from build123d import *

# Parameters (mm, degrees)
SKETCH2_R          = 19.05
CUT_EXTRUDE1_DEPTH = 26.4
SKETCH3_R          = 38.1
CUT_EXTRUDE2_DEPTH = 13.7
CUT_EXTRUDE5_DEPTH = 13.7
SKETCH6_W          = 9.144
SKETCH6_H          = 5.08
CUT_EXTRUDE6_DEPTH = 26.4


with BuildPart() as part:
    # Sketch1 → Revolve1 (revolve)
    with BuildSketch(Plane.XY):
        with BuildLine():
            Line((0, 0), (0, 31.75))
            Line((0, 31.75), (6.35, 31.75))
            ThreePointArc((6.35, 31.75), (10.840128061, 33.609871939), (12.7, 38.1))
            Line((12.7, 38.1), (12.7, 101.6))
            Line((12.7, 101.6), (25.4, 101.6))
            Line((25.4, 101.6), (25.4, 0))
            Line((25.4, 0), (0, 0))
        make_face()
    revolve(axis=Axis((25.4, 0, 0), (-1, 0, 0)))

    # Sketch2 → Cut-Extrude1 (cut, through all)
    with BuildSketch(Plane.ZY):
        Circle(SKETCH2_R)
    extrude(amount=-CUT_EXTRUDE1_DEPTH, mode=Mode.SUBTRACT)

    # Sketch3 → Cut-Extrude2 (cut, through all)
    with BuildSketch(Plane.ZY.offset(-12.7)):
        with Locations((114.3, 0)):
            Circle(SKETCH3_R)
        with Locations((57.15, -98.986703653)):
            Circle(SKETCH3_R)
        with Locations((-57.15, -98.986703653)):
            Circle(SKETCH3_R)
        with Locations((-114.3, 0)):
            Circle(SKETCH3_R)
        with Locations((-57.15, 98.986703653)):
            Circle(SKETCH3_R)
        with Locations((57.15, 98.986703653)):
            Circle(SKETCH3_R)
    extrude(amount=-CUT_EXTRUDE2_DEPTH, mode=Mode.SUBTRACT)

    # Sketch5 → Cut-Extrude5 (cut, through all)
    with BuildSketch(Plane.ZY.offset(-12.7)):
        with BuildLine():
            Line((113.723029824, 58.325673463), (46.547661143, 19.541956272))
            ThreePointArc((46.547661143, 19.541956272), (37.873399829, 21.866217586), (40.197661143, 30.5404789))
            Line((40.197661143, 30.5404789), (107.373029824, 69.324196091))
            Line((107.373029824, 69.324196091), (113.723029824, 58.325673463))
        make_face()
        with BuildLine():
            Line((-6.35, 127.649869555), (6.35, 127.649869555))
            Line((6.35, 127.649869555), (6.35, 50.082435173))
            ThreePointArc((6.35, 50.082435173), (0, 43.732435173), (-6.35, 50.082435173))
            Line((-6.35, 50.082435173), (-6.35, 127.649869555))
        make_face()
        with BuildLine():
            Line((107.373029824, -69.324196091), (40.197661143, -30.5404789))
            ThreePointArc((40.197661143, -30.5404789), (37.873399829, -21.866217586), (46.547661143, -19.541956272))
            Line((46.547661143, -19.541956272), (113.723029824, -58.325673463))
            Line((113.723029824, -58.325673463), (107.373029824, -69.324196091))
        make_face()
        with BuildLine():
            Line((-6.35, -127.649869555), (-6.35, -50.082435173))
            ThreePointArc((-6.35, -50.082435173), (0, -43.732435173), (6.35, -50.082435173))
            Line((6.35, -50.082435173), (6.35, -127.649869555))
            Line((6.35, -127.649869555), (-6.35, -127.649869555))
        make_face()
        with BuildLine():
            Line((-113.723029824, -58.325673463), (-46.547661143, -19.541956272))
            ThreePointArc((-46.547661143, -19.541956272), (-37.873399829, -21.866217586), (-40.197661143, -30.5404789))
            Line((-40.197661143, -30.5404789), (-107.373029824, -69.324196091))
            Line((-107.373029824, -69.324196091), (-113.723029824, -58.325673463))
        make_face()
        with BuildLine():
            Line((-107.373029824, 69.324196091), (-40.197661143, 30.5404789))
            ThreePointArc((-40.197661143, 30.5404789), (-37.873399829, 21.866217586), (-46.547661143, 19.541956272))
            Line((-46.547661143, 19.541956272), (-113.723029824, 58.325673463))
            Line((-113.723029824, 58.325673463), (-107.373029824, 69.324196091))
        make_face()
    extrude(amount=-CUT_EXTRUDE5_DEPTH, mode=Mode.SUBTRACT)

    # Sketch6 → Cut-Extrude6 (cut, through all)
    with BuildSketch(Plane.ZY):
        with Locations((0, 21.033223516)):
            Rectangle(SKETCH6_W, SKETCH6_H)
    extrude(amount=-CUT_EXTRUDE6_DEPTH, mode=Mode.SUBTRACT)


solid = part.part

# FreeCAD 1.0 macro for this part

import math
import FreeCAD as App
import Part
import Sketcher
from FreeCAD import Vector
Q = App.Units.Quantity

doc = App.newDocument("Part")
params = doc.addObject("Spreadsheet::Sheet", "Params")
for row, (alias, value) in enumerate([
    ("sketch1_width", "1 in"),
    ("sketch1_height", "4 in"),
    ("sketch1_radius", "0.25 in"),
    ("sketch1_width2", "0.5 in"),
    ("sketch1_height2", "2.5 in"),
    ("revolution_angle", "360 deg"),
    ("sketch2_diameter", "1.5 in"),
    ("sketch3_diameter", "3 in"),
    ("sketch4_radius", "0.25 in"),
    ("sketch5_width", "0.2 in"),
    ("sketch5_height", "0.36 in"),
], start=1):
    params.set(f"A{row}", alias)
    params.set(f"B{row}", "=" + value)
    params.setAlias(f"B{row}", alias)

body = doc.addObject("PartDesign::Body", "Body")

sketch1 = body.newObject("Sketcher::SketchObject", "Sketch")
sketch1.AttachmentSupport = (doc.getObject("XY_Plane"), [""])
sketch1.MapMode = "FlatFace"
sketch1.addGeometry([
    Part.LineSegment(Vector(0, 32, 0), Vector(0, 0, 0)),
    Part.LineSegment(Vector(0, 0, 0), Vector(25, 0, 0)),
    Part.LineSegment(Vector(25, 0, 0), Vector(25, 102, 0)),
    Part.LineSegment(Vector(25, 102, 0), Vector(13, 102, 0)),
    Part.LineSegment(Vector(13, 102, 0), Vector(13, 38, 0)),
    Part.ArcOfCircle(Part.Circle(Vector(6, 38, 0), Vector(0, 0, 1), 6), math.radians(-90), math.radians(0)),
    Part.LineSegment(Vector(6, 32, 0), Vector(0, 32, 0)),
], False)
sketch1.addConstraint([
    Sketcher.Constraint("Coincident", 0, 2, 1, 1),
    Sketcher.Constraint("Coincident", 1, 2, 2, 1),
    Sketcher.Constraint("Coincident", 2, 2, 3, 1),
    Sketcher.Constraint("Coincident", 3, 2, 4, 1),
    Sketcher.Constraint("Tangent", 4, 2, 5, 2),
    Sketcher.Constraint("Tangent", 5, 1, 6, 1),
    Sketcher.Constraint("Coincident", 6, 2, 0, 1),
    Sketcher.Constraint("Vertical", 0),
    Sketcher.Constraint("Horizontal", 1),
    Sketcher.Constraint("Vertical", 2),
    Sketcher.Constraint("Horizontal", 3),
    Sketcher.Constraint("Vertical", 4),
    Sketcher.Constraint("Horizontal", 6),
    Sketcher.Constraint("Coincident", 0, 2, -1, 1),
    Sketcher.Constraint("DistanceX", 1, 1, 1, 2, Q("1 in")),
    Sketcher.Constraint("DistanceY", 2, 1, 2, 2, Q("4 in")),
    Sketcher.Constraint("Radius", 5, Q("0.25 in")),
    Sketcher.Constraint("DistanceX", 3, 2, 3, 1, Q("0.5 in")),
    Sketcher.Constraint("DistanceY", 4, 2, 4, 1, Q("2.5 in")),
])
sketch1.setExpression("Constraints[14]", "Params.sketch1_width")
sketch1.setExpression("Constraints[15]", "Params.sketch1_height")
sketch1.setExpression("Constraints[16]", "Params.sketch1_radius")
sketch1.setExpression("Constraints[17]", "Params.sketch1_width2")
sketch1.setExpression("Constraints[18]", "Params.sketch1_height2")
revolution = body.newObject("PartDesign::Revolution", "Revolution")
revolution.Profile = sketch1
revolution.ReferenceAxis = (sketch1, ["H_Axis"])
revolution.setExpression("Angle", "Params.revolution_angle")

sketch2 = body.newObject("Sketcher::SketchObject", "Sketch001")
sketch2.AttachmentSupport = (doc.getObject("YZ_Plane"), [""])
sketch2.MapMode = "FlatFace"
sketch2.addGeometry(Part.Circle(Vector(0, 0, 0), Vector(0, 0, 1), 19), False)
sketch2.addConstraint([
    Sketcher.Constraint("Coincident", 0, 3, -1, 1),
    Sketcher.Constraint("Diameter", 0, Q("1.5 in")),
])
sketch2.setExpression("Constraints[1]", "Params.sketch2_diameter")
pocket1 = body.newObject("PartDesign::Pocket", "Pocket")
pocket1.Profile = sketch2
pocket1.Type = "ThroughAll"
pocket1.Reversed = True

sketch3 = body.newObject("Sketcher::SketchObject", "Sketch002")
sketch3.AttachmentSupport = (doc.getObject("YZ_Plane"), [""])
sketch3.MapMode = "FlatFace"
sketch3.AttachmentOffset = App.Placement(Vector(0, 0, 0.5 * 25.4), App.Rotation())
sketch3.addGeometry([
    Part.Circle(Vector(0, 114, 0), Vector(0, 0, 1), 38),
    Part.Circle(Vector(-99, 57, 0), Vector(0, 0, 1), 38),
    Part.Circle(Vector(-99, -57, 0), Vector(0, 0, 1), 38),
    Part.Circle(Vector(0, -114, 0), Vector(0, 0, 1), 38),
    Part.Circle(Vector(99, -57, 0), Vector(0, 0, 1), 38),
    Part.Circle(Vector(99, 57, 0), Vector(0, 0, 1), 38),
], False)
sketch3.addConstraint([
    Sketcher.Constraint("Equal", 0, 1),
    Sketcher.Constraint("Equal", 1, 2),
    Sketcher.Constraint("Equal", 2, 3),
    Sketcher.Constraint("Equal", 3, 4),
    Sketcher.Constraint("Equal", 4, 5),
    Sketcher.Constraint("Symmetric", 0, 3, 3, 3, -1, 1),
    Sketcher.Constraint("Symmetric", 1, 3, 4, 3, -1, 1),
    Sketcher.Constraint("Symmetric", 2, 3, 5, 3, -1, 1),
    Sketcher.Constraint("Symmetric", 2, 3, 4, 3, -2),
    Sketcher.Constraint("PointOnObject", 0, 3, -2),
    Sketcher.Constraint("Diameter", 0, Q("3 in")),
    Sketcher.Constraint("DistanceY", 3, 3, 0, 3, Q("9 in")),
    Sketcher.Constraint("DistanceY", 2, 3, 1, 3, Q("4.5 in")),
    Sketcher.Constraint("DistanceX", 1, 3, -1, 1, 98.986704),
])
sketch3.setExpression("Constraints[10]", "Params.sketch3_diameter")
pocket2 = body.newObject("PartDesign::Pocket", "Pocket001")
pocket2.Profile = sketch3
pocket2.Type = "ThroughAll"
pocket2.Reversed = True

sketch4 = body.newObject("Sketcher::SketchObject", "Sketch003")
sketch4.AttachmentSupport = (doc.getObject("YZ_Plane"), [""])
sketch4.MapMode = "FlatFace"
sketch4.AttachmentOffset = App.Placement(Vector(0, 0, 0.5 * 25.4), App.Rotation())
sketch4.addGeometry([
    Part.LineSegment(Vector(20, 47, 0), Vector(58, 114, 0)),
    Part.LineSegment(Vector(58, 114, 0), Vector(69, 107, 0)),
    Part.LineSegment(Vector(69, 107, 0), Vector(31, 40, 0)),
    Part.ArcOfCircle(Part.Circle(Vector(25, 43, 0), Vector(0, 0, 1), 6), math.radians(150), math.radians(330)),
    Part.LineSegment(Vector(128, 6, 0), Vector(128, -6, 0)),
    Part.LineSegment(Vector(128, -6, 0), Vector(50, -6, 0)),
    Part.ArcOfCircle(Part.Circle(Vector(50, 0, 0), Vector(0, 0, 1), 6), math.radians(90), math.radians(270)),
    Part.LineSegment(Vector(50, 6, 0), Vector(128, 6, 0)),
    Part.LineSegment(Vector(-31, 40, 0), Vector(-69, 107, 0)),
    Part.LineSegment(Vector(-69, 107, 0), Vector(-58, 114, 0)),
    Part.LineSegment(Vector(-58, 114, 0), Vector(-20, 47, 0)),
    Part.ArcOfCircle(Part.Circle(Vector(-25, 43, 0), Vector(0, 0, 1), 6), math.radians(-150), math.radians(30)),
    Part.LineSegment(Vector(-50, -6, 0), Vector(-128, -6, 0)),
    Part.LineSegment(Vector(-128, -6, 0), Vector(-128, 6, 0)),
    Part.LineSegment(Vector(-128, 6, 0), Vector(-50, 6, 0)),
    Part.ArcOfCircle(Part.Circle(Vector(-50, 0, 0), Vector(0, 0, 1), 6), math.radians(-90), math.radians(90)),
    Part.LineSegment(Vector(-20, -47, 0), Vector(-58, -114, 0)),
    Part.LineSegment(Vector(-58, -114, 0), Vector(-69, -107, 0)),
    Part.LineSegment(Vector(-69, -107, 0), Vector(-31, -40, 0)),
    Part.ArcOfCircle(Part.Circle(Vector(-25, -43, 0), Vector(0, 0, 1), 6), math.radians(-30), math.radians(150)),
    Part.LineSegment(Vector(31, -40, 0), Vector(69, -107, 0)),
    Part.LineSegment(Vector(69, -107, 0), Vector(58, -114, 0)),
    Part.LineSegment(Vector(58, -114, 0), Vector(20, -47, 0)),
    Part.ArcOfCircle(Part.Circle(Vector(25, -43, 0), Vector(0, 0, 1), 6), math.radians(30), math.radians(210)),
], False)
sketch4.addConstraint([
    Sketcher.Constraint("Coincident", 0, 2, 1, 1),
    Sketcher.Constraint("Coincident", 1, 2, 2, 1),
    Sketcher.Constraint("Tangent", 2, 2, 3, 2),
    Sketcher.Constraint("Tangent", 3, 1, 0, 1),
    Sketcher.Constraint("Coincident", 4, 2, 5, 1),
    Sketcher.Constraint("Tangent", 5, 2, 6, 2),
    Sketcher.Constraint("Tangent", 6, 1, 7, 1),
    Sketcher.Constraint("Coincident", 7, 2, 4, 1),
    Sketcher.Constraint("Coincident", 8, 2, 9, 1),
    Sketcher.Constraint("Coincident", 9, 2, 10, 1),
    Sketcher.Constraint("Tangent", 10, 2, 11, 2),
    Sketcher.Constraint("Tangent", 11, 1, 8, 1),
    Sketcher.Constraint("Coincident", 12, 2, 13, 1),
    Sketcher.Constraint("Coincident", 13, 2, 14, 1),
    Sketcher.Constraint("Tangent", 14, 2, 15, 2),
    Sketcher.Constraint("Tangent", 15, 1, 12, 1),
    Sketcher.Constraint("Coincident", 16, 2, 17, 1),
    Sketcher.Constraint("Coincident", 17, 2, 18, 1),
    Sketcher.Constraint("Tangent", 18, 2, 19, 2),
    Sketcher.Constraint("Tangent", 19, 1, 16, 1),
    Sketcher.Constraint("Coincident", 20, 2, 21, 1),
    Sketcher.Constraint("Coincident", 21, 2, 22, 1),
    Sketcher.Constraint("Tangent", 22, 2, 23, 2),
    Sketcher.Constraint("Tangent", 23, 1, 20, 1),
    Sketcher.Constraint("Vertical", 4),
    Sketcher.Constraint("Horizontal", 5),
    Sketcher.Constraint("Horizontal", 7),
    Sketcher.Constraint("Horizontal", 12),
    Sketcher.Constraint("Vertical", 13),
    Sketcher.Constraint("Horizontal", 14),
    Sketcher.Constraint("Equal", 3, 6),
    Sketcher.Constraint("Equal", 6, 11),
    Sketcher.Constraint("Equal", 11, 15),
    Sketcher.Constraint("Equal", 15, 19),
    Sketcher.Constraint("Equal", 19, 23),
    Sketcher.Constraint("Symmetric", 6, 3, 15, 3, -1, 1),
    Sketcher.Constraint("Symmetric", 3, 3, 19, 3, -1, 1),
    Sketcher.Constraint("Symmetric", 11, 3, 23, 3, -1, 1),
    Sketcher.Constraint("Symmetric", 0, 2, 16, 2, -1, 1),
    Sketcher.Constraint("Symmetric", 1, 2, 17, 2, -1, 1),
    Sketcher.Constraint("Symmetric", 8, 2, 20, 2, -1, 1),
    Sketcher.Constraint("Symmetric", 9, 2, 21, 2, -1, 1),
    Sketcher.Constraint("Symmetric", 3, 3, 11, 3, -2),
    Sketcher.Constraint("Symmetric", 1, 2, 8, 2, -2),
    Sketcher.Constraint("Symmetric", 0, 2, 9, 2, -2),
    Sketcher.Constraint("Symmetric", 4, 2, 12, 2, -2),
    Sketcher.Constraint("Perpendicular", 0, 1),
    Sketcher.Constraint("Perpendicular", 1, 2),
    Sketcher.Constraint("Radius", 3, Q("0.25 in")),
    Sketcher.Constraint("Angle", 0, Q("60 deg")),
    Sketcher.Constraint("DistanceX", 5, 2, 5, 1, 77.567434),
    Sketcher.Constraint("DistanceY", -1, 1, 3, 3, 43.372661),
    Sketcher.Constraint("DistanceY", -1, 1, 0, 2, 113.72303),
    Sketcher.Constraint("DistanceX", -1, 1, 2, 2, 30.540479),
    Sketcher.Constraint("DistanceX", -1, 1, 4, 2, 127.64987),
])
sketch4.setExpression("Constraints[48]", "Params.sketch4_radius")
pocket3 = body.newObject("PartDesign::Pocket", "Pocket002")
pocket3.Profile = sketch4
pocket3.Type = "ThroughAll"
pocket3.Reversed = True

sketch5 = body.newObject("Sketcher::SketchObject", "Sketch004")
sketch5.AttachmentSupport = (doc.getObject("YZ_Plane"), [""])
sketch5.MapMode = "FlatFace"
sketch5.addGeometry([
    Part.LineSegment(Vector(24, -5, 0), Vector(18, -5, 0)),
    Part.LineSegment(Vector(18, -5, 0), Vector(18, 5, 0)),
    Part.LineSegment(Vector(18, 5, 0), Vector(24, 5, 0)),
    Part.LineSegment(Vector(24, 5, 0), Vector(24, -5, 0)),
], False)
sketch5.addConstraint([
    Sketcher.Constraint("Coincident", 0, 2, 1, 1),
    Sketcher.Constraint("Coincident", 1, 2, 2, 1),
    Sketcher.Constraint("Coincident", 2, 2, 3, 1),
    Sketcher.Constraint("Coincident", 3, 2, 0, 1),
    Sketcher.Constraint("Horizontal", 0),
    Sketcher.Constraint("Vertical", 1),
    Sketcher.Constraint("Horizontal", 2),
    Sketcher.Constraint("Vertical", 3),
    Sketcher.Constraint("DistanceX", 0, 2, 0, 1, Q("0.2 in")),
    Sketcher.Constraint("DistanceY", 1, 1, 1, 2, Q("0.36 in")),
    Sketcher.Constraint("DistanceY", 0, 2, -1, 1, Q("0.18 in")),
    Sketcher.Constraint("DistanceX", -1, 1, 0, 2, 18.493224),
])
sketch5.setExpression("Constraints[8]", "Params.sketch5_width")
sketch5.setExpression("Constraints[9]", "Params.sketch5_height")
pocket4 = body.newObject("PartDesign::Pocket", "Pocket003")
pocket4.Profile = sketch5
pocket4.Type = "ThroughAll"
pocket4.Reversed = True

doc.recompute()
